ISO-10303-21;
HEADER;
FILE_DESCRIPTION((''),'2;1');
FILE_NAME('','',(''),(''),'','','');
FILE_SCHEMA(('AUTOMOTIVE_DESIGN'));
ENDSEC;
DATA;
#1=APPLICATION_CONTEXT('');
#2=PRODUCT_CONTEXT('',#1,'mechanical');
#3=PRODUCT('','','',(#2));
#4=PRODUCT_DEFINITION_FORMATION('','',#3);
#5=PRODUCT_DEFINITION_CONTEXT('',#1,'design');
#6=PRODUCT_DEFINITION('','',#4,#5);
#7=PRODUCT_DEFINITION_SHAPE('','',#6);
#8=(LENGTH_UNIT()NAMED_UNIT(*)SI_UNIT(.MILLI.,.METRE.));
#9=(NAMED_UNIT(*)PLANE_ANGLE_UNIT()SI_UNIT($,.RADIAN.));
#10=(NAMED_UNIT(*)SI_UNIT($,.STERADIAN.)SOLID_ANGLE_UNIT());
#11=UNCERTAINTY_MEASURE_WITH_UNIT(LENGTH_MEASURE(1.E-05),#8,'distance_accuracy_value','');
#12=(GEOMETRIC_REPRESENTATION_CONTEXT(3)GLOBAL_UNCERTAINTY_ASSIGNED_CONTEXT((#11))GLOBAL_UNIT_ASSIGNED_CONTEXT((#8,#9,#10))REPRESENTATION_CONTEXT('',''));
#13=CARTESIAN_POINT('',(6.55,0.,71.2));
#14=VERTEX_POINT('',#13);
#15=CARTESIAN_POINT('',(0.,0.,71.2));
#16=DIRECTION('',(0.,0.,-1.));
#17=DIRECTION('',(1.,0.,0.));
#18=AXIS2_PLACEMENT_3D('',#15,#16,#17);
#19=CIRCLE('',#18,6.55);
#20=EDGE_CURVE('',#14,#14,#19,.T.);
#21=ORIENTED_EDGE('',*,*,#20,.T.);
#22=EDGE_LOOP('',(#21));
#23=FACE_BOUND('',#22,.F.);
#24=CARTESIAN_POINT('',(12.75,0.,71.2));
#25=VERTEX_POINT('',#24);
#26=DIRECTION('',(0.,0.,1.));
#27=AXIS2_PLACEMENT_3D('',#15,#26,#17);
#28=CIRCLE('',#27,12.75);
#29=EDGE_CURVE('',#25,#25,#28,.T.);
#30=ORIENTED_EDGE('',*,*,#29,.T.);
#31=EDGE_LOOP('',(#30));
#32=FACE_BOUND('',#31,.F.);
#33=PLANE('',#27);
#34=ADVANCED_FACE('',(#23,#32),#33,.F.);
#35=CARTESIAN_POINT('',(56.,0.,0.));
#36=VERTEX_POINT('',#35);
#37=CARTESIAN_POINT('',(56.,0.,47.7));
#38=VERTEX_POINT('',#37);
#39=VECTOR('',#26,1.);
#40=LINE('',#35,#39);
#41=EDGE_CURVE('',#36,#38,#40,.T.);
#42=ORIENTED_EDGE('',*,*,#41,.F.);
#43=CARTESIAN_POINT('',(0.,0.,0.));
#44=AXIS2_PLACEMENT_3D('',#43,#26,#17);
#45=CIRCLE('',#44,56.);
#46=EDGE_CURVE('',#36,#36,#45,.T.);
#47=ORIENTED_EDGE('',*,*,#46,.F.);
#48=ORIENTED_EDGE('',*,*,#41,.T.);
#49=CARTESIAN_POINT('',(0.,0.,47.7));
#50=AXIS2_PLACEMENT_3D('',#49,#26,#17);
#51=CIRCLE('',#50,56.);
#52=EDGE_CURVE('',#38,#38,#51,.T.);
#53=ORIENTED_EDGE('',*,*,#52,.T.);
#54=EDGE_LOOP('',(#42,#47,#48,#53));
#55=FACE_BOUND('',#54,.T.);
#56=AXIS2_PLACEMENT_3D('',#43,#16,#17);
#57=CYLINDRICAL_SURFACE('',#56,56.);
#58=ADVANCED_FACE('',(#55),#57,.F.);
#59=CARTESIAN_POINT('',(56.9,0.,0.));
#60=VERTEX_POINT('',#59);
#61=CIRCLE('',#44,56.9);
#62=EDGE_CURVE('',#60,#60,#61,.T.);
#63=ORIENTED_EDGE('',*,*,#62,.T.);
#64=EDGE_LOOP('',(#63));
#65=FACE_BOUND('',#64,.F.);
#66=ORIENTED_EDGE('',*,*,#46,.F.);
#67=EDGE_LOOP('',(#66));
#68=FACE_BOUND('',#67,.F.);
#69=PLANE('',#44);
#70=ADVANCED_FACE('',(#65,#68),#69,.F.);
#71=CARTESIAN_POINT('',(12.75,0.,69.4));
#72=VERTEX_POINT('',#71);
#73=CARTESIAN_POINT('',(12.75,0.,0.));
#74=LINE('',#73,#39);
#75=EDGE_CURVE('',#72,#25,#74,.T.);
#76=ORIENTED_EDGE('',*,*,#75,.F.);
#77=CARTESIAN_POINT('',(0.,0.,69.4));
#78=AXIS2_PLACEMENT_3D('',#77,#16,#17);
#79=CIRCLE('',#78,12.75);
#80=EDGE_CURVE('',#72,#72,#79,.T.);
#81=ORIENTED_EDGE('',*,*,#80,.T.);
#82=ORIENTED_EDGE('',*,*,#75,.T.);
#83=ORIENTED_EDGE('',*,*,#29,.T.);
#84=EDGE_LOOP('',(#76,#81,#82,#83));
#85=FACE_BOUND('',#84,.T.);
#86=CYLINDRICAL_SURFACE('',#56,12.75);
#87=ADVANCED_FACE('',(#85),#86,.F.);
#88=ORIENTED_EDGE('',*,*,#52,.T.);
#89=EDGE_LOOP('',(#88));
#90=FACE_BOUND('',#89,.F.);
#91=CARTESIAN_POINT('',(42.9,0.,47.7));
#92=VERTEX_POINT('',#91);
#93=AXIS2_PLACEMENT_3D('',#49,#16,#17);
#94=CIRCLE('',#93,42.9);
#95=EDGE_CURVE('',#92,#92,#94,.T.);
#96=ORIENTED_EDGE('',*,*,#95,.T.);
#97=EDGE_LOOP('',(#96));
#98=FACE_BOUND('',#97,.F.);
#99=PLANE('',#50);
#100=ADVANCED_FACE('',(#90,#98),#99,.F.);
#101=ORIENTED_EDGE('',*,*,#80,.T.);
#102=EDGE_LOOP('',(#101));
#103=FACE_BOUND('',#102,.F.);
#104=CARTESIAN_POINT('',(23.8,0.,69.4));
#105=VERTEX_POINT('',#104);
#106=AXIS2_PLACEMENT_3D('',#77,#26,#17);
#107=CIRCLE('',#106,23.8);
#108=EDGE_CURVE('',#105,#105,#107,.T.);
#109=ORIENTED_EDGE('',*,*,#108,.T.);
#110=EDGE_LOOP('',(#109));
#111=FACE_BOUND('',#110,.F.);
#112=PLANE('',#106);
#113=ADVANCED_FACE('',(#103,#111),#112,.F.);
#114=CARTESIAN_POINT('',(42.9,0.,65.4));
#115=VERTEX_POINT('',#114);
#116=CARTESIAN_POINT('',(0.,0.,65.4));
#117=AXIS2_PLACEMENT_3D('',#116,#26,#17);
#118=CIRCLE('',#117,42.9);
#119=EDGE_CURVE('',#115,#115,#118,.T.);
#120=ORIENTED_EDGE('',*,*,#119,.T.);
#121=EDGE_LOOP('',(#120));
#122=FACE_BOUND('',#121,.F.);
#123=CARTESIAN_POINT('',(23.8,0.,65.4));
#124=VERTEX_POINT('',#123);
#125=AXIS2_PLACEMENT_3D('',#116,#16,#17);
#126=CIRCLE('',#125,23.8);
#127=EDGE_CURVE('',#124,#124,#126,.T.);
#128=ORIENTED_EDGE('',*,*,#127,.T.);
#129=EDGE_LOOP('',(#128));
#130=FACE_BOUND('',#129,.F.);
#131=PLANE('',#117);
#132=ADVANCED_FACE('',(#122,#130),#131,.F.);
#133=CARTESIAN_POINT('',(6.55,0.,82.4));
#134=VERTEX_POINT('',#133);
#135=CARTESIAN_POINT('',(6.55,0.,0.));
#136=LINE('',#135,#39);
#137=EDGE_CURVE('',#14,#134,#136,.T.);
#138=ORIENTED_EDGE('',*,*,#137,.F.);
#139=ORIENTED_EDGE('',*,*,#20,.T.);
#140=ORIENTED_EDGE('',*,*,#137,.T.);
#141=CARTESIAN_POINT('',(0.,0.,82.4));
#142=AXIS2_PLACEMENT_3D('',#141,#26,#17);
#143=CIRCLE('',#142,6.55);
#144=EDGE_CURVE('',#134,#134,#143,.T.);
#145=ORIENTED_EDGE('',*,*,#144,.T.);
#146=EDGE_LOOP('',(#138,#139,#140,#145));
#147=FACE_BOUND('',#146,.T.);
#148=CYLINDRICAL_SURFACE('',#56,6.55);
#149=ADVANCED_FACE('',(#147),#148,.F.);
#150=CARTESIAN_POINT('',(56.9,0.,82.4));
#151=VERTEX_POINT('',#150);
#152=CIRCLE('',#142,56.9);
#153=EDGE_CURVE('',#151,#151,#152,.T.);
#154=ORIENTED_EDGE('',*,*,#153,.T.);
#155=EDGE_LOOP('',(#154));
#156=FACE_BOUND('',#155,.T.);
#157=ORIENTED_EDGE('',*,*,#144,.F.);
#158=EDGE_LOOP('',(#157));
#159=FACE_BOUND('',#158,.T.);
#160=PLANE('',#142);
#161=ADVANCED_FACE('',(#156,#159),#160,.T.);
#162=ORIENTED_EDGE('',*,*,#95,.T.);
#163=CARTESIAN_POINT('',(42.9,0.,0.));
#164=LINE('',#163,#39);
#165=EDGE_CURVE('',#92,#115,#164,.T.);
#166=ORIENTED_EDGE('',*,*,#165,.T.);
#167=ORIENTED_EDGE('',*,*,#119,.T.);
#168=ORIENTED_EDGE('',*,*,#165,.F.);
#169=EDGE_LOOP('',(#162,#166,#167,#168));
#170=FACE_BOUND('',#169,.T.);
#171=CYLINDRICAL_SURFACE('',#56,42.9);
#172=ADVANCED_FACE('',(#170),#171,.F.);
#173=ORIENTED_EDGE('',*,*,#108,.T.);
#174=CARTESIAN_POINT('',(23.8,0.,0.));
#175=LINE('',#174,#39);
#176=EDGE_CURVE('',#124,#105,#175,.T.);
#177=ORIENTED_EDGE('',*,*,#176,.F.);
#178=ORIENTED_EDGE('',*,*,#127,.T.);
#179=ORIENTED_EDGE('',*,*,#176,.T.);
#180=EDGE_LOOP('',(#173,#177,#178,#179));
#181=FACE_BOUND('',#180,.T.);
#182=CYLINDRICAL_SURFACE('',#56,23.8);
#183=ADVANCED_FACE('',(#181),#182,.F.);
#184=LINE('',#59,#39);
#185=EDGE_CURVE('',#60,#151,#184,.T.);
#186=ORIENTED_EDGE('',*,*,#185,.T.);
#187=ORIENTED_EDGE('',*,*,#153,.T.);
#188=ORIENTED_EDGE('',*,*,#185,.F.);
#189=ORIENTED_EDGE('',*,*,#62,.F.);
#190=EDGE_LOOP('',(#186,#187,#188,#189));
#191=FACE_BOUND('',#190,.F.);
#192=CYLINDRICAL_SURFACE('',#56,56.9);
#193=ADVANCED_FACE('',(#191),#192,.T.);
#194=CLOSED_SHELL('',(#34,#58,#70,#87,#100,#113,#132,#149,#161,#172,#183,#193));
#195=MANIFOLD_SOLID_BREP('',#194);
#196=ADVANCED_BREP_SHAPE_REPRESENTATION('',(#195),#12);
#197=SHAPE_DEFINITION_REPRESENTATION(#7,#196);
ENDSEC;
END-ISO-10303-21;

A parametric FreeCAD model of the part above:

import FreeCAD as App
import Part
import Sketcher

V = App.Vector
Q = App.Units.Quantity

doc = App.newDocument("Part")
params = doc.addObject("Spreadsheet::Sheet", "Params")
for row, (alias, value) in enumerate([
    ("sketch1_diameter", "113.8 mm"),
    ("pad1_length", "82.4 mm"),
    ("sketch2_diameter", "13.1 mm"),
    ("pocket1_length", "82.4 mm"),
    ("sketch3_diameter", "112 mm"),
    ("pocket2_length", "47.7 mm"),
    ("sketch4_diameter", "85.8 mm"),
    ("pocket3_length", "65.4 mm"),
    ("sketch5_diameter", "47.6 mm"),
    ("pocket4_length", "69.4 mm"),
    ("sketch6_diameter", "25.5 mm"),
    ("pocket5_length", "71.2 mm"),
], start=1):
    params.set(f"A{row}", alias)
    params.set(f"B{row}", "=" + value)
    params.setAlias(f"B{row}", alias)

body = doc.addObject("PartDesign::Body", "Body")

# Sketch on XY plane
sketch1 = doc.addObject("Sketcher::SketchObject", "Sketch")
body.addObject(sketch1)
sketch1.AttachmentSupport = (doc.XY_Plane, [""])
sketch1.MapMode = "FlatFace"
sketch1.addGeometry(Part.Circle(V(0, 0, 0), V(0, 0, 1), 57), False)
sketch1.addConstraint(Sketcher.Constraint("Coincident", 0, 3, -1, 1))
sketch1.addConstraint(Sketcher.Constraint("Diameter", 0, Q("113.8 mm")))
sketch1.setExpression("Constraints[1]", "Params.sketch1_diameter")
pad1 = doc.addObject("PartDesign::Pad", "Pad")
body.addObject(pad1)
pad1.Profile = sketch1
pad1.setExpression("Length", "Params.pad1_length")

# Sketch on XY plane
sketch2 = doc.addObject("Sketcher::SketchObject", "Sketch001")
body.addObject(sketch2)
sketch2.AttachmentSupport = (doc.XY_Plane, [""])
sketch2.MapMode = "FlatFace"
sketch2.addGeometry(Part.Circle(V(0, 0, 0), V(0, 0, 1), 7), False)
sketch2.addConstraint(Sketcher.Constraint("Coincident", 0, 3, -1, 1))
sketch2.addConstraint(Sketcher.Constraint("Diameter", 0, Q("13.1 mm")))
sketch2.setExpression("Constraints[1]", "Params.sketch2_diameter")
pocket1 = doc.addObject("PartDesign::Pocket", "Pocket")
body.addObject(pocket1)
pocket1.Profile = sketch2
pocket1.setExpression("Length", "Params.pocket1_length")
pocket1.Reversed = True

# Sketch on XY plane
sketch3 = doc.addObject("Sketcher::SketchObject", "Sketch002")
body.addObject(sketch3)
sketch3.AttachmentSupport = (doc.XY_Plane, [""])
sketch3.MapMode = "FlatFace"
sketch3.addGeometry(Part.Circle(V(0, 0, 0), V(0, 0, 1), 56), False)
sketch3.addConstraint(Sketcher.Constraint("Coincident", 0, 3, -1, 1))
sketch3.addConstraint(Sketcher.Constraint("Diameter", 0, Q("112 mm")))
sketch3.setExpression("Constraints[1]", "Params.sketch3_diameter")
pocket2 = doc.addObject("PartDesign::Pocket", "Pocket001")
body.addObject(pocket2)
pocket2.Profile = sketch3
pocket2.setExpression("Length", "Params.pocket2_length")
pocket2.Reversed = True

# Sketch on XY plane
sketch4 = doc.addObject("Sketcher::SketchObject", "Sketch003")
body.addObject(sketch4)
sketch4.AttachmentSupport = (doc.XY_Plane, [""])
sketch4.MapMode = "FlatFace"
sketch4.addGeometry(Part.Circle(V(0, 0, 0), V(0, 0, 1), 43), False)
sketch4.addConstraint(Sketcher.Constraint("Coincident", 0, 3, -1, 1))
sketch4.addConstraint(Sketcher.Constraint("Diameter", 0, Q("85.8 mm")))
sketch4.setExpression("Constraints[1]", "Params.sketch4_diameter")
pocket3 = doc.addObject("PartDesign::Pocket", "Pocket002")
body.addObject(pocket3)
pocket3.Profile = sketch4
pocket3.setExpression("Length", "Params.pocket3_length")
pocket3.Reversed = True

# Sketch on XY plane
sketch5 = doc.addObject("Sketcher::SketchObject", "Sketch004")
body.addObject(sketch5)
sketch5.AttachmentSupport = (doc.XY_Plane, [""])
sketch5.MapMode = "FlatFace"
sketch5.addGeometry(Part.Circle(V(0, 0, 0), V(0, 0, 1), 24), False)
sketch5.addConstraint(Sketcher.Constraint("Coincident", 0, 3, -1, 1))
sketch5.addConstraint(Sketcher.Constraint("Diameter", 0, Q("47.6 mm")))
sketch5.setExpression("Constraints[1]", "Params.sketch5_diameter")
pocket4 = doc.addObject("PartDesign::Pocket", "Pocket003")
body.addObject(pocket4)
pocket4.Profile = sketch5
pocket4.setExpression("Length", "Params.pocket4_length")
pocket4.Reversed = True

# Sketch on XY plane
sketch6 = doc.addObject("Sketcher::SketchObject", "Sketch005")
body.addObject(sketch6)
sketch6.AttachmentSupport = (doc.XY_Plane, [""])
sketch6.MapMode = "FlatFace"
sketch6.addGeometry(Part.Circle(V(0, 0, 0), V(0, 0, 1), 13), False)
sketch6.addConstraint(Sketcher.Constraint("Coincident", 0, 3, -1, 1))
sketch6.addConstraint(Sketcher.Constraint("Diameter", 0, Q("25.5 mm")))
sketch6.setExpression("Constraints[1]", "Params.sketch6_diameter")
pocket5 = doc.addObject("PartDesign::Pocket", "Pocket004")
body.addObject(pocket5)
pocket5.Profile = sketch6
pocket5.setExpression("Length", "Params.pocket5_length")
pocket5.Reversed = True

doc.recompute()
